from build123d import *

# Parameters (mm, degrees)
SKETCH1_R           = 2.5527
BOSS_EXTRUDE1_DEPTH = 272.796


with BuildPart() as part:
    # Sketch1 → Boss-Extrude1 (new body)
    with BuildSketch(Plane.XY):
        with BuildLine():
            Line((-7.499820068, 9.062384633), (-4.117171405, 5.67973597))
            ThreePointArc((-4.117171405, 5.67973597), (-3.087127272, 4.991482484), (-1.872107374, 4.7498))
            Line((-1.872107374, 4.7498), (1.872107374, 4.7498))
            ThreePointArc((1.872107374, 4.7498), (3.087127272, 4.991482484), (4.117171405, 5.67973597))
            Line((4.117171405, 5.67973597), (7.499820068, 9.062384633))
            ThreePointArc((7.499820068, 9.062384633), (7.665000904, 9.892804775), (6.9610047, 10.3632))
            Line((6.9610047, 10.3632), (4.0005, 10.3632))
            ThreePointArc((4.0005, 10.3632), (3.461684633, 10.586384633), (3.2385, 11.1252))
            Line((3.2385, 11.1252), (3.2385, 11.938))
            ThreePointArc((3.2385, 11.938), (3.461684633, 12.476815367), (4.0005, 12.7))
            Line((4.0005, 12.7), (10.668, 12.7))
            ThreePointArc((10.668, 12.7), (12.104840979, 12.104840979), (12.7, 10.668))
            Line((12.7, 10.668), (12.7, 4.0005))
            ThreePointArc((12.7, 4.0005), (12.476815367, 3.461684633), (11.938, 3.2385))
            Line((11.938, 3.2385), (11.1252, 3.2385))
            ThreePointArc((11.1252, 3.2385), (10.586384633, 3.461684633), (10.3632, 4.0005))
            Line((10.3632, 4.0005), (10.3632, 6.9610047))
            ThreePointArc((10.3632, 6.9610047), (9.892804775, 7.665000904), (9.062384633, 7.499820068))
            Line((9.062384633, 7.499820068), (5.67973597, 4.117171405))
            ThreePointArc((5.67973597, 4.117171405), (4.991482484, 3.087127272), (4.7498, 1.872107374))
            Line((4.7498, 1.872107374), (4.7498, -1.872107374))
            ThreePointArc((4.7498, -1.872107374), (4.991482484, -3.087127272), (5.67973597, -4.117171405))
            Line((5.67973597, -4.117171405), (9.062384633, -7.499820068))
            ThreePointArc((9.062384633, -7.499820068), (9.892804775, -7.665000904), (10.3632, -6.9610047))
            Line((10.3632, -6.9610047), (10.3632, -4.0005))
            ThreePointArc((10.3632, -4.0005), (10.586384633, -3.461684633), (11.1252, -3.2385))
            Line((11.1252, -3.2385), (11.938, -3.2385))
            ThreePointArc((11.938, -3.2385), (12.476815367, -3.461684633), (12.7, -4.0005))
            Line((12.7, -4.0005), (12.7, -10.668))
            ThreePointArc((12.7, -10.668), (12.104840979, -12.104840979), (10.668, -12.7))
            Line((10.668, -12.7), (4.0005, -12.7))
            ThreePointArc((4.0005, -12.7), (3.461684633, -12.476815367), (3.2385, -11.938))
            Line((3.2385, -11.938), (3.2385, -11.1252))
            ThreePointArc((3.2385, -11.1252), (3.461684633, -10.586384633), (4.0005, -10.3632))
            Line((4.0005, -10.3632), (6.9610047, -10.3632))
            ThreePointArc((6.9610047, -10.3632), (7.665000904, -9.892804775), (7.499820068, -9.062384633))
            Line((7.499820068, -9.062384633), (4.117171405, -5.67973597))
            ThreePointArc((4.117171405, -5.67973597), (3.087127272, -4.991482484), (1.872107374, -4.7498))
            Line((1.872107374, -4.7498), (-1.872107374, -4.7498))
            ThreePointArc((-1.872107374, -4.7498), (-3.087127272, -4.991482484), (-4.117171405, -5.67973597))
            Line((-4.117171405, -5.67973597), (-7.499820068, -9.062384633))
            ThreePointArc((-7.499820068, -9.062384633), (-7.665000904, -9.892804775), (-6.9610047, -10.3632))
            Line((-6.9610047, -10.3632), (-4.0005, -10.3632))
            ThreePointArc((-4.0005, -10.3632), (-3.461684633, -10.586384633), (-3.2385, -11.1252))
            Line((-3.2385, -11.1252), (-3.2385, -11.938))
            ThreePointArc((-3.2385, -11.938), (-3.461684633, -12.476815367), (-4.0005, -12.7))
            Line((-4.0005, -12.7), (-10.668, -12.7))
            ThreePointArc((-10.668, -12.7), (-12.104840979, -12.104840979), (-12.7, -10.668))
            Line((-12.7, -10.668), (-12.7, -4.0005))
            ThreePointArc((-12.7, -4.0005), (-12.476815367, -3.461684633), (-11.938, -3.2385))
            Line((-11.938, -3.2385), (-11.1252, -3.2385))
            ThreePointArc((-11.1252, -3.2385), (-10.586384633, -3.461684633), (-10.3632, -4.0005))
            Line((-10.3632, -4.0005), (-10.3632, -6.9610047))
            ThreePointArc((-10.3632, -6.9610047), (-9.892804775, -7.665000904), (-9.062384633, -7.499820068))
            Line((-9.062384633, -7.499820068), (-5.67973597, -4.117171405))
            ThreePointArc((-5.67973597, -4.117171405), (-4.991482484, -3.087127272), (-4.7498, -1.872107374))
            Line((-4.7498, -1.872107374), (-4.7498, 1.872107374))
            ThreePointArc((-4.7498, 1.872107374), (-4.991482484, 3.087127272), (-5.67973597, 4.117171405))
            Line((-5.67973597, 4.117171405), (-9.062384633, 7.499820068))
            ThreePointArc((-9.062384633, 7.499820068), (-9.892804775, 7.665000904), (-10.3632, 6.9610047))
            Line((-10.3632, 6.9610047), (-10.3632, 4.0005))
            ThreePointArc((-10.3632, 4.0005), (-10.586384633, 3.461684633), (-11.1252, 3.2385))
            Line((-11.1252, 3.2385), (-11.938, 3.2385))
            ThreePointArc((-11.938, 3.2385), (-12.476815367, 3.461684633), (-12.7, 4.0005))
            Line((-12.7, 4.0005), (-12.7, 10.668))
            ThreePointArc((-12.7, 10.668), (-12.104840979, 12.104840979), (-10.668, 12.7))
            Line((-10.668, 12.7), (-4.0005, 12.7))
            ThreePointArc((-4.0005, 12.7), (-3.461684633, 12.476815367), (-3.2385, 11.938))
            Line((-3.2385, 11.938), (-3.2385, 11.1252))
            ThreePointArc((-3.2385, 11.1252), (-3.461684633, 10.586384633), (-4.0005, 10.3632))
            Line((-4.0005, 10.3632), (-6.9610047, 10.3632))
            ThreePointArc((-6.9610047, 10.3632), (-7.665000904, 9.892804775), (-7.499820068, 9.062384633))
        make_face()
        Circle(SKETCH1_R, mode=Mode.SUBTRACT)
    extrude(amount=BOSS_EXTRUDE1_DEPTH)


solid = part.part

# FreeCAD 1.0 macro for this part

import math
import FreeCAD as App
import Part
import Sketcher
Q = App.Units.Quantity

doc = App.newDocument("Part")
body = doc.addObject("PartDesign::Body", "Body")

# Sketch on XY plane
sketch1 = doc.addObject("Sketcher::SketchObject", "Sketch")
body.addObject(sketch1)
sketch1.AttachmentSupport = (doc.XY_Plane, [""])
sketch1.MapMode = "FlatFace"
sketch1.addGeometry([
    Part.LineSegment(App.Vector(-4.117171, 5.679736, 0), App.Vector(-7.49982, 9.062385, 0)),  # 0
    Part.ArcOfCircle(Part.Circle(App.Vector(-6.961005, 9.6012, 0), App.Vector(0, 0, 1), 0.762), math.radians(90), math.radians(225)),  # 1
    Part.LineSegment(App.Vector(-6.961005, 10.3632, 0), App.Vector(-4.0005, 10.3632, 0)),  # 2
    Part.ArcOfCircle(Part.Circle(App.Vector(-4.0005, 11.1252, 0), App.Vector(0, 0, 1), 0.762), math.radians(-90), math.radians(0)),  # 3
    Part.LineSegment(App.Vector(-3.2385, 11.1252, 0), App.Vector(-3.2385, 11.938, 0)),  # 4
    Part.ArcOfCircle(Part.Circle(App.Vector(-4.0005, 11.938, 0), App.Vector(0, 0, 1), 0.762), math.radians(0), math.radians(90)),  # 5
    Part.LineSegment(App.Vector(-4.0005, 12.7, 0), App.Vector(-10.668, 12.7, 0)),  # 6
    Part.ArcOfCircle(Part.Circle(App.Vector(-10.668, 10.668, 0), App.Vector(0, 0, 1), 2.032), math.radians(90), math.radians(180)),  # 7
    Part.LineSegment(App.Vector(-12.7, 10.668, 0), App.Vector(-12.7, 4.0005, 0)),  # 8
    Part.ArcOfCircle(Part.Circle(App.Vector(-11.938, 4.0005, 0), App.Vector(0, 0, 1), 0.762), math.radians(-180), math.radians(-90)),  # 9
    Part.LineSegment(App.Vector(-11.938, 3.2385, 0), App.Vector(-11.1252, 3.2385, 0)),  # 10
    Part.ArcOfCircle(Part.Circle(App.Vector(-11.1252, 4.0005, 0), App.Vector(0, 0, 1), 0.762), math.radians(-90), math.radians(0)),  # 11
    Part.LineSegment(App.Vector(-10.3632, 4.0005, 0), App.Vector(-10.3632, 6.961005, 0)),  # 12
    Part.ArcOfCircle(Part.Circle(App.Vector(-9.6012, 6.961005, 0), App.Vector(0, 0, 1), 0.762), math.radians(45), math.radians(180)),  # 13
    Part.LineSegment(App.Vector(-9.062385, 7.49982, 0), App.Vector(-5.679736, 4.117171, 0)),  # 14
    Part.ArcOfCircle(Part.Circle(App.Vector(-7.9248, 1.872107, 0), App.Vector(0, 0, 1), 3.175), math.radians(0), math.radians(45)),  # 15
    Part.LineSegment(App.Vector(-4.7498, 1.872107, 0), App.Vector(-4.7498, -1.872107, 0)),  # 16
    Part.ArcOfCircle(Part.Circle(App.Vector(-7.9248, -1.872107, 0), App.Vector(0, 0, 1), 3.175), math.radians(-45), math.radians(0)),  # 17
    Part.LineSegment(App.Vector(-5.679736, -4.117171, 0), App.Vector(-9.062385, -7.49982, 0)),  # 18
    Part.ArcOfCircle(Part.Circle(App.Vector(-9.6012, -6.961005, 0), App.Vector(0, 0, 1), 0.762), math.radians(180), math.radians(315)),  # 19
    Part.LineSegment(App.Vector(-10.3632, -6.961005, 0), App.Vector(-10.3632, -4.0005, 0)),  # 20
    Part.ArcOfCircle(Part.Circle(App.Vector(-11.1252, -4.0005, 0), App.Vector(0, 0, 1), 0.762), math.radians(0), math.radians(90)),  # 21
    Part.LineSegment(App.Vector(-11.1252, -3.2385, 0), App.Vector(-11.938, -3.2385, 0)),  # 22
    Part.ArcOfCircle(Part.Circle(App.Vector(-11.938, -4.0005, 0), App.Vector(0, 0, 1), 0.762), math.radians(90), math.radians(180)),  # 23
    Part.LineSegment(App.Vector(-12.7, -4.0005, 0), App.Vector(-12.7, -10.668, 0)),  # 24
    Part.ArcOfCircle(Part.Circle(App.Vector(-10.668, -10.668, 0), App.Vector(0, 0, 1), 2.032), math.radians(-180), math.radians(-90)),  # 25
    Part.LineSegment(App.Vector(-10.668, -12.7, 0), App.Vector(-4.0005, -12.7, 0)),  # 26
    Part.ArcOfCircle(Part.Circle(App.Vector(-4.0005, -11.938, 0), App.Vector(0, 0, 1), 0.762), math.radians(-90), math.radians(0)),  # 27
    Part.LineSegment(App.Vector(-3.2385, -11.938, 0), App.Vector(-3.2385, -11.1252, 0)),  # 28
    Part.ArcOfCircle(Part.Circle(App.Vector(-4.0005, -11.1252, 0), App.Vector(0, 0, 1), 0.762), math.radians(0), math.radians(90)),  # 29
    Part.LineSegment(App.Vector(-4.0005, -10.3632, 0), App.Vector(-6.961005, -10.3632, 0)),  # 30
    Part.ArcOfCircle(Part.Circle(App.Vector(-6.961005, -9.6012, 0), App.Vector(0, 0, 1), 0.762), math.radians(135), math.radians(270)),  # 31
    Part.LineSegment(App.Vector(-7.49982, -9.062385, 0), App.Vector(-4.117171, -5.679736, 0)),  # 32
    Part.ArcOfCircle(Part.Circle(App.Vector(-1.872107, -7.9248, 0), App.Vector(0, 0, 1), 3.175), math.radians(90), math.radians(135)),  # 33
    Part.LineSegment(App.Vector(-1.872107, -4.7498, 0), App.Vector(1.872107, -4.7498, 0)),  # 34
    Part.ArcOfCircle(Part.Circle(App.Vector(1.872107, -7.9248, 0), App.Vector(0, 0, 1), 3.175), math.radians(45), math.radians(90)),  # 35
    Part.LineSegment(App.Vector(4.117171, -5.679736, 0), App.Vector(7.49982, -9.062385, 0)),  # 36
    Part.ArcOfCircle(Part.Circle(App.Vector(6.961005, -9.6012, 0), App.Vector(0, 0, 1), 0.762), math.radians(-90), math.radians(45)),  # 37
    Part.LineSegment(App.Vector(6.961005, -10.3632, 0), App.Vector(4.0005, -10.3632, 0)),  # 38
    Part.ArcOfCircle(Part.Circle(App.Vector(4.0005, -11.1252, 0), App.Vector(0, 0, 1), 0.762), math.radians(90), math.radians(180)),  # 39
    Part.LineSegment(App.Vector(3.2385, -11.1252, 0), App.Vector(3.2385, -11.938, 0)),  # 40
    Part.ArcOfCircle(Part.Circle(App.Vector(4.0005, -11.938, 0), App.Vector(0, 0, 1), 0.762), math.radians(-180), math.radians(-90)),  # 41
    Part.LineSegment(App.Vector(4.0005, -12.7, 0), App.Vector(10.668, -12.7, 0)),  # 42
    Part.ArcOfCircle(Part.Circle(App.Vector(10.668, -10.668, 0), App.Vector(0, 0, 1), 2.032), math.radians(-90), math.radians(0)),  # 43
    Part.LineSegment(App.Vector(12.7, -10.668, 0), App.Vector(12.7, -4.0005, 0)),  # 44
    Part.ArcOfCircle(Part.Circle(App.Vector(11.938, -4.0005, 0), App.Vector(0, 0, 1), 0.762), math.radians(0), math.radians(90)),  # 45
    Part.LineSegment(App.Vector(11.938, -3.2385, 0), App.Vector(11.1252, -3.2385, 0)),  # 46
    Part.ArcOfCircle(Part.Circle(App.Vector(11.1252, -4.0005, 0), App.Vector(0, 0, 1), 0.762), math.radians(90), math.radians(180)),  # 47
    Part.LineSegment(App.Vector(10.3632, -4.0005, 0), App.Vector(10.3632, -6.961005, 0)),  # 48
    Part.ArcOfCircle(Part.Circle(App.Vector(9.6012, -6.961005, 0), App.Vector(0, 0, 1), 0.762), math.radians(-135), math.radians(0)),  # 49
    Part.LineSegment(App.Vector(9.062385, -7.49982, 0), App.Vector(5.679736, -4.117171, 0)),  # 50
    Part.ArcOfCircle(Part.Circle(App.Vector(7.9248, -1.872107, 0), App.Vector(0, 0, 1), 3.175), math.radians(180), math.radians(225)),  # 51
    Part.LineSegment(App.Vector(4.7498, -1.872107, 0), App.Vector(4.7498, 1.872107, 0)),  # 52
    Part.ArcOfCircle(Part.Circle(App.Vector(7.9248, 1.872107, 0), App.Vector(0, 0, 1), 3.175), math.radians(135), math.radians(180)),  # 53
    Part.LineSegment(App.Vector(5.679736, 4.117171, 0), App.Vector(9.062385, 7.49982, 0)),  # 54
    Part.ArcOfCircle(Part.Circle(App.Vector(9.6012, 6.961005, 0), App.Vector(0, 0, 1), 0.762), math.radians(0), math.radians(135)),  # 55
    Part.LineSegment(App.Vector(10.3632, 6.961005, 0), App.Vector(10.3632, 4.0005, 0)),  # 56
    Part.ArcOfCircle(Part.Circle(App.Vector(11.1252, 4.0005, 0), App.Vector(0, 0, 1), 0.762), math.radians(-180), math.radians(-90)),  # 57
    Part.LineSegment(App.Vector(11.1252, 3.2385, 0), App.Vector(11.938, 3.2385, 0)),  # 58
    Part.ArcOfCircle(Part.Circle(App.Vector(11.938, 4.0005, 0), App.Vector(0, 0, 1), 0.762), math.radians(-90), math.radians(0)),  # 59
    Part.LineSegment(App.Vector(12.7, 4.0005, 0), App.Vector(12.7, 10.668, 0)),  # 60
    Part.ArcOfCircle(Part.Circle(App.Vector(10.668, 10.668, 0), App.Vector(0, 0, 1), 2.032), math.radians(0), math.radians(90)),  # 61
    Part.LineSegment(App.Vector(10.668, 12.7, 0), App.Vector(4.0005, 12.7, 0)),  # 62
    Part.ArcOfCircle(Part.Circle(App.Vector(4.0005, 11.938, 0), App.Vector(0, 0, 1), 0.762), math.radians(90), math.radians(180)),  # 63
    Part.LineSegment(App.Vector(3.2385, 11.938, 0), App.Vector(3.2385, 11.1252, 0)),  # 64
    Part.ArcOfCircle(Part.Circle(App.Vector(4.0005, 11.1252, 0), App.Vector(0, 0, 1), 0.762), math.radians(-180), math.radians(-90)),  # 65
    Part.LineSegment(App.Vector(4.0005, 10.3632, 0), App.Vector(6.961005, 10.3632, 0)),  # 66
    Part.ArcOfCircle(Part.Circle(App.Vector(6.961005, 9.6012, 0), App.Vector(0, 0, 1), 0.762), math.radians(-45), math.radians(90)),  # 67
    Part.LineSegment(App.Vector(7.49982, 9.062385, 0), App.Vector(4.117171, 5.679736, 0)),  # 68
    Part.ArcOfCircle(Part.Circle(App.Vector(1.872107, 7.9248, 0), App.Vector(0, 0, 1), 3.175), math.radians(-90), math.radians(-45)),  # 69
    Part.LineSegment(App.Vector(1.872107, 4.7498, 0), App.Vector(-1.872107, 4.7498, 0)),  # 70
    Part.ArcOfCircle(Part.Circle(App.Vector(-1.872107, 7.9248, 0), App.Vector(0, 0, 1), 3.175), math.radians(-135), math.radians(-90)),  # 71
    Part.Circle(App.Vector(0, 0, 0), App.Vector(0, 0, 1), 2.5527),  # 72
], False)
sketch1.addConstraint([
    Sketcher.Constraint("Tangent", 0, 2, 1, 2),
    Sketcher.Constraint("Tangent", 1, 1, 2, 1),
    Sketcher.Constraint("Tangent", 2, 2, 3, 1),
    Sketcher.Constraint("Tangent", 3, 2, 4, 1),
    Sketcher.Constraint("Tangent", 4, 2, 5, 1),
    Sketcher.Constraint("Tangent", 5, 2, 6, 1),
    Sketcher.Constraint("Tangent", 6, 2, 7, 1),
    Sketcher.Constraint("Tangent", 7, 2, 8, 1),
    Sketcher.Constraint("Tangent", 8, 2, 9, 1),
    Sketcher.Constraint("Tangent", 9, 2, 10, 1),
    Sketcher.Constraint("Tangent", 10, 2, 11, 1),
    Sketcher.Constraint("Tangent", 11, 2, 12, 1),
    Sketcher.Constraint("Tangent", 12, 2, 13, 2),
    Sketcher.Constraint("Tangent", 13, 1, 14, 1),
    Sketcher.Constraint("Tangent", 14, 2, 15, 2),
    Sketcher.Constraint("Tangent", 15, 1, 16, 1),
    Sketcher.Constraint("Tangent", 16, 2, 17, 2),
    Sketcher.Constraint("Tangent", 17, 1, 18, 1),
    Sketcher.Constraint("Tangent", 18, 2, 19, 2),
    Sketcher.Constraint("Tangent", 19, 1, 20, 1),
    Sketcher.Constraint("Tangent", 20, 2, 21, 1),
    Sketcher.Constraint("Tangent", 21, 2, 22, 1),
    Sketcher.Constraint("Tangent", 22, 2, 23, 1),
    Sketcher.Constraint("Tangent", 23, 2, 24, 1),
    Sketcher.Constraint("Tangent", 24, 2, 25, 1),
    Sketcher.Constraint("Tangent", 25, 2, 26, 1),
    Sketcher.Constraint("Tangent", 26, 2, 27, 1),
    Sketcher.Constraint("Tangent", 27, 2, 28, 1),
    Sketcher.Constraint("Tangent", 28, 2, 29, 1),
    Sketcher.Constraint("Tangent", 29, 2, 30, 1),
    Sketcher.Constraint("Tangent", 30, 2, 31, 2),
    Sketcher.Constraint("Tangent", 31, 1, 32, 1),
    Sketcher.Constraint("Tangent", 32, 2, 33, 2),
    Sketcher.Constraint("Tangent", 33, 1, 34, 1),
    Sketcher.Constraint("Tangent", 34, 2, 35, 2),
    Sketcher.Constraint("Tangent", 35, 1, 36, 1),
    Sketcher.Constraint("Tangent", 36, 2, 37, 2),
    Sketcher.Constraint("Tangent", 37, 1, 38, 1),
    Sketcher.Constraint("Tangent", 38, 2, 39, 1),
    Sketcher.Constraint("Tangent", 39, 2, 40, 1),
    Sketcher.Constraint("Tangent", 40, 2, 41, 1),
    Sketcher.Constraint("Tangent", 41, 2, 42, 1),
    Sketcher.Constraint("Tangent", 42, 2, 43, 1),
    Sketcher.Constraint("Tangent", 43, 2, 44, 1),
    Sketcher.Constraint("Tangent", 44, 2, 45, 1),
    Sketcher.Constraint("Tangent", 45, 2, 46, 1),
    Sketcher.Constraint("Tangent", 46, 2, 47, 1),
    Sketcher.Constraint("Tangent", 47, 2, 48, 1),
    Sketcher.Constraint("Tangent", 48, 2, 49, 2),
    Sketcher.Constraint("Tangent", 49, 1, 50, 1),
    Sketcher.Constraint("Tangent", 50, 2, 51, 2),
    Sketcher.Constraint("Tangent", 51, 1, 52, 1),
    Sketcher.Constraint("Tangent", 52, 2, 53, 2),
    Sketcher.Constraint("Tangent", 53, 1, 54, 1),
    Sketcher.Constraint("Tangent", 54, 2, 55, 2),
    Sketcher.Constraint("Tangent", 55, 1, 56, 1),
    Sketcher.Constraint("Tangent", 56, 2, 57, 1),
    Sketcher.Constraint("Tangent", 57, 2, 58, 1),
    Sketcher.Constraint("Tangent", 58, 2, 59, 1),
    Sketcher.Constraint("Tangent", 59, 2, 60, 1),
    Sketcher.Constraint("Tangent", 60, 2, 61, 1),
    Sketcher.Constraint("Tangent", 61, 2, 62, 1),
    Sketcher.Constraint("Tangent", 62, 2, 63, 1),
    Sketcher.Constraint("Tangent", 63, 2, 64, 1),
    Sketcher.Constraint("Tangent", 64, 2, 65, 1),
    Sketcher.Constraint("Tangent", 65, 2, 66, 1),
    Sketcher.Constraint("Tangent", 66, 2, 67, 2),
    Sketcher.Constraint("Tangent", 67, 1, 68, 1),
    Sketcher.Constraint("Tangent", 68, 2, 69, 2),
    Sketcher.Constraint("Tangent", 69, 1, 70, 1),
    Sketcher.Constraint("Tangent", 70, 2, 71, 2),
    Sketcher.Constraint("Tangent", 71, 1, 0, 1),
    Sketcher.Constraint("Horizontal", 2),
    Sketcher.Constraint("Vertical", 4),
    Sketcher.Constraint("Horizontal", 6),
    Sketcher.Constraint("Vertical", 8),
    Sketcher.Constraint("Horizontal", 10),
    Sketcher.Constraint("Vertical", 12),
    Sketcher.Constraint("Vertical", 16),
    Sketcher.Constraint("Vertical", 20),
    Sketcher.Constraint("Horizontal", 22),
    Sketcher.Constraint("Vertical", 24),
    Sketcher.Constraint("Horizontal", 26),
    Sketcher.Constraint("Vertical", 28),
    Sketcher.Constraint("Horizontal", 30),
    Sketcher.Constraint("Horizontal", 34),
    Sketcher.Constraint("Horizontal", 38),
    Sketcher.Constraint("Vertical", 40),
    Sketcher.Constraint("Horizontal", 42),
    Sketcher.Constraint("Vertical", 44),
    Sketcher.Constraint("Horizontal", 46),
    Sketcher.Constraint("Vertical", 48),
    Sketcher.Constraint("Vertical", 52),
    Sketcher.Constraint("Vertical", 56),
    Sketcher.Constraint("Horizontal", 58),
    Sketcher.Constraint("Vertical", 60),
    Sketcher.Constraint("Horizontal", 62),
    Sketcher.Constraint("Vertical", 64),
    Sketcher.Constraint("Horizontal", 66),
    Sketcher.Constraint("Horizontal", 70),
    Sketcher.Constraint("Coincident", 72, 3, -1, 1),
    Sketcher.Constraint("Equal", 1, 3),
    Sketcher.Constraint("Equal", 3, 5),
    Sketcher.Constraint("Equal", 5, 9),
    Sketcher.Constraint("Equal", 9, 11),
    Sketcher.Constraint("Equal", 11, 13),
    Sketcher.Constraint("Equal", 15, 17),
    Sketcher.Constraint("Equal", 13, 19),
    Sketcher.Constraint("Equal", 19, 21),
    Sketcher.Constraint("Equal", 21, 23),
    Sketcher.Constraint("Equal", 7, 25),
    Sketcher.Constraint("Equal", 23, 27),
    Sketcher.Constraint("Equal", 27, 29),
    Sketcher.Constraint("Equal", 29, 31),
    Sketcher.Constraint("Equal", 17, 33),
    Sketcher.Constraint("Equal", 33, 35),
    Sketcher.Constraint("Equal", 31, 37),
    Sketcher.Constraint("Equal", 37, 39),
    Sketcher.Constraint("Equal", 39, 41),
    Sketcher.Constraint("Equal", 25, 43),
    Sketcher.Constraint("Equal", 41, 45),
    Sketcher.Constraint("Equal", 45, 47),
    Sketcher.Constraint("Equal", 47, 49),
    Sketcher.Constraint("Equal", 35, 51),
    Sketcher.Constraint("Equal", 51, 53),
    Sketcher.Constraint("Equal", 49, 55),
    Sketcher.Constraint("Equal", 55, 57),
    Sketcher.Constraint("Equal", 57, 59),
    Sketcher.Constraint("Equal", 43, 61),
    Sketcher.Constraint("Equal", 59, 63),
    Sketcher.Constraint("Equal", 63, 65),
    Sketcher.Constraint("Equal", 65, 67),
    Sketcher.Constraint("Equal", 53, 69),
    Sketcher.Constraint("Equal", 69, 71),
    Sketcher.Constraint("Symmetric", 1, 3, 37, 3, -1, 1),
    Sketcher.Constraint("Symmetric", 5, 3, 41, 3, -1, 1),
    Sketcher.Constraint("Symmetric", 9, 3, 45, 3, -1, 1),
    Sketcher.Constraint("Symmetric", 13, 3, 49, 3, -1, 1),
    Sketcher.Constraint("Symmetric", 15, 3, 51, 3, -1, 1),
    Sketcher.Constraint("Symmetric", 19, 3, 55, 3, -1, 1),
    Sketcher.Constraint("Symmetric", 23, 3, 59, 3, -1, 1),
    Sketcher.Constraint("Symmetric", 27, 3, 63, 3, -1, 1),
    Sketcher.Constraint("Symmetric", 31, 3, 67, 3, -1, 1),
    Sketcher.Constraint("Symmetric", 33, 3, 69, 3, -1, 1),
    Sketcher.Constraint("Symmetric", 31, 3, 37, 3, -2),
    Sketcher.Constraint("Symmetric", 27, 3, 41, 3, -2),
    Sketcher.Constraint("Symmetric", 23, 3, 45, 3, -2),
    Sketcher.Constraint("Symmetric", 19, 3, 49, 3, -2),
    Sketcher.Constraint("Parallel", 0, 14),
    Sketcher.Constraint("Perpendicular", 14, 18),
    Sketcher.Constraint("Parallel", 18, 32),
    Sketcher.Constraint("Perpendicular", 32, 36),
    Sketcher.Constraint("Perpendicular", 50, 54),
    Sketcher.Constraint("Horizontal", 17, 3, 51, 3),
    Sketcher.Constraint("Equal", 58, 4),
    Sketcher.Constraint("Equal", 62, 8),
    Sketcher.Constraint("Equal", 66, 12),
    Sketcher.Constraint("Equal", 70, 16),
    Sketcher.Constraint("Equal", 0, 14),
    Sketcher.Constraint("Radius", 1, Q("0.03 in")),
    Sketcher.Constraint("Radius", 7, Q("0.08 in")),
    Sketcher.Constraint("Diameter", 72, Q("0.201 in")),
    Sketcher.Constraint("Radius", 15, Q("0.125 in")),
    Sketcher.Constraint("DistanceY", -1, 1, 5, 2, Q("0.5 in")),
    Sketcher.Constraint("DistanceX", 10, 1, 10, 2, Q("0.032 in")),
    Sketcher.Constraint("DistanceX", 6, 2, 6, 1, Q("0.2625 in")),
    Sketcher.Constraint("DistanceX", 15, 3, -1, 1, Q("0.312 in")),
    Sketcher.Constraint("DistanceX", 2, 1, 2, 2, Q("2.960505 mm")),
])
pad1 = doc.addObject("PartDesign::Pad", "Pad")
body.addObject(pad1)
pad1.Profile = sketch1
pad1.Length = Q("10.74 in")

doc.recompute()
